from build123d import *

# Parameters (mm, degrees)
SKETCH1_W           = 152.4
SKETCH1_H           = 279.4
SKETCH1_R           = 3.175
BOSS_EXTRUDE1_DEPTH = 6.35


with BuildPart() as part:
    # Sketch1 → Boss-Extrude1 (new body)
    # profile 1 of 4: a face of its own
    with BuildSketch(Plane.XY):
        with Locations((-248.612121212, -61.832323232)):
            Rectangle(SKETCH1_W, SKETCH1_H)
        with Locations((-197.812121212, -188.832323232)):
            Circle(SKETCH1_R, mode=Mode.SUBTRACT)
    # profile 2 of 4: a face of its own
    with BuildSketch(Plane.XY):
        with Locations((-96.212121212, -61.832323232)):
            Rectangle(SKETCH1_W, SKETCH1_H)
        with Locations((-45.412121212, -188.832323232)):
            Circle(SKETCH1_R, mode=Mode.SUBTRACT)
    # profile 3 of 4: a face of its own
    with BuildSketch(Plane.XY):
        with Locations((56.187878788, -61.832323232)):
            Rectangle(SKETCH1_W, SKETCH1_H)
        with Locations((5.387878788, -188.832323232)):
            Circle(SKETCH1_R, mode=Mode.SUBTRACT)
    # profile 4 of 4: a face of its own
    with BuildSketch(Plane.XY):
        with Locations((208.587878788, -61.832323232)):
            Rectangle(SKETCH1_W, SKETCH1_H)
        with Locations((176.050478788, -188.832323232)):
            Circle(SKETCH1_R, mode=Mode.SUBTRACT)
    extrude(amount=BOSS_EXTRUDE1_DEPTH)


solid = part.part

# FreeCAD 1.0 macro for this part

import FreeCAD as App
import Part
import Sketcher

V = App.Vector
Q = App.Units.Quantity

doc = App.newDocument("Part")
params = doc.addObject("Spreadsheet::Sheet", "Params")
for row, (alias, value) in enumerate([
    ("sketch1_diameter", "0.25 in"),
    ("sketch1_width", "24 in"),
    ("sketch1_height", "11 in"),
    ("pad1_length", "0.25 in"),
], start=1):
    params.set(f"A{row}", alias)
    params.set(f"B{row}", "=" + value)
    params.setAlias(f"B{row}", alias)

body = doc.addObject("PartDesign::Body", "Body")

# Sketch on XY plane
sketch1 = doc.addObject("Sketcher::SketchObject", "Sketch")
body.addObject(sketch1)
sketch1.AttachmentSupport = (doc.XY_Plane, [""])
sketch1.MapMode = "FlatFace"
sketch1.addGeometry([
    Part.LineSegment(V(-324.8, 77.9, 0), V(-324.8, -201.5, 0)),  # 0
    Part.LineSegment(V(-324.8, -201.5, 0), V(284.8, -201.5, 0)),  # 1
    Part.LineSegment(V(284.8, -201.5, 0), V(284.8, 77.9, 0)),  # 2
    Part.LineSegment(V(284.8, 77.9, 0), V(-324.8, 77.9, 0)),  # 3
    Part.Circle(V(-197.8, -188.8, 0), V(0, 0, 1), 3.2),  # 4
    Part.Circle(V(-45.4, -188.8, 0), V(0, 0, 1), 3.2),  # 5
    Part.Circle(V(5.4, -188.8, 0), V(0, 0, 1), 3.2),  # 6
    Part.Circle(V(176.1, -188.8, 0), V(0, 0, 1), 3.2),  # 7
], False)
sketch1.addConstraint([
    Sketcher.Constraint("Coincident", 0, 2, 1, 1),
    Sketcher.Constraint("Coincident", 1, 2, 2, 1),
    Sketcher.Constraint("Coincident", 2, 2, 3, 1),
    Sketcher.Constraint("Coincident", 3, 2, 0, 1),
    Sketcher.Constraint("Vertical", 0),
    Sketcher.Constraint("Horizontal", 1),
    Sketcher.Constraint("Vertical", 2),
    Sketcher.Constraint("Horizontal", 3),
    Sketcher.Constraint("Equal", 4, 5),
    Sketcher.Constraint("Equal", 5, 6),
    Sketcher.Constraint("Equal", 6, 7),
    Sketcher.Constraint("Horizontal", 4, 3, 5, 3),
    Sketcher.Constraint("Horizontal", 5, 3, 6, 3),
    Sketcher.Constraint("Horizontal", 6, 3, 7, 3),
    Sketcher.Constraint("Diameter", 4, Q("0.25 in")),
    Sketcher.Constraint("DistanceX", 1, 1, 1, 2, Q("24 in")),
    Sketcher.Constraint("DistanceY", 0, 2, 0, 1, Q("11 in")),
    Sketcher.Constraint("DistanceX", 4, 3, 5, 3, Q("6 in")),
    Sketcher.Constraint("DistanceX", 5, 3, 6, 3, Q("2 in")),
    Sketcher.Constraint("DistanceX", 0, 2, 4, 3, Q("5 in")),
    Sketcher.Constraint("DistanceY", 0, 2, 4, 3, Q("0.5 in")),
    Sketcher.Constraint("DistanceX", 6, 3, 7, 3, Q("6.719 in")),
    Sketcher.Constraint("DistanceX", 4, 3, -1, 1, 197.812121),
    Sketcher.Constraint("DistanceY", 4, 3, -1, 1, 188.832323),
])
sketch1.setExpression("Constraints[14]", "Params.sketch1_diameter")
sketch1.setExpression("Constraints[15]", "Params.sketch1_width")
sketch1.setExpression("Constraints[16]", "Params.sketch1_height")
pad1 = doc.addObject("PartDesign::Pad", "Pad")
body.addObject(pad1)
pad1.Profile = sketch1
pad1.setExpression("Length", "Params.pad1_length")

doc.recompute()
